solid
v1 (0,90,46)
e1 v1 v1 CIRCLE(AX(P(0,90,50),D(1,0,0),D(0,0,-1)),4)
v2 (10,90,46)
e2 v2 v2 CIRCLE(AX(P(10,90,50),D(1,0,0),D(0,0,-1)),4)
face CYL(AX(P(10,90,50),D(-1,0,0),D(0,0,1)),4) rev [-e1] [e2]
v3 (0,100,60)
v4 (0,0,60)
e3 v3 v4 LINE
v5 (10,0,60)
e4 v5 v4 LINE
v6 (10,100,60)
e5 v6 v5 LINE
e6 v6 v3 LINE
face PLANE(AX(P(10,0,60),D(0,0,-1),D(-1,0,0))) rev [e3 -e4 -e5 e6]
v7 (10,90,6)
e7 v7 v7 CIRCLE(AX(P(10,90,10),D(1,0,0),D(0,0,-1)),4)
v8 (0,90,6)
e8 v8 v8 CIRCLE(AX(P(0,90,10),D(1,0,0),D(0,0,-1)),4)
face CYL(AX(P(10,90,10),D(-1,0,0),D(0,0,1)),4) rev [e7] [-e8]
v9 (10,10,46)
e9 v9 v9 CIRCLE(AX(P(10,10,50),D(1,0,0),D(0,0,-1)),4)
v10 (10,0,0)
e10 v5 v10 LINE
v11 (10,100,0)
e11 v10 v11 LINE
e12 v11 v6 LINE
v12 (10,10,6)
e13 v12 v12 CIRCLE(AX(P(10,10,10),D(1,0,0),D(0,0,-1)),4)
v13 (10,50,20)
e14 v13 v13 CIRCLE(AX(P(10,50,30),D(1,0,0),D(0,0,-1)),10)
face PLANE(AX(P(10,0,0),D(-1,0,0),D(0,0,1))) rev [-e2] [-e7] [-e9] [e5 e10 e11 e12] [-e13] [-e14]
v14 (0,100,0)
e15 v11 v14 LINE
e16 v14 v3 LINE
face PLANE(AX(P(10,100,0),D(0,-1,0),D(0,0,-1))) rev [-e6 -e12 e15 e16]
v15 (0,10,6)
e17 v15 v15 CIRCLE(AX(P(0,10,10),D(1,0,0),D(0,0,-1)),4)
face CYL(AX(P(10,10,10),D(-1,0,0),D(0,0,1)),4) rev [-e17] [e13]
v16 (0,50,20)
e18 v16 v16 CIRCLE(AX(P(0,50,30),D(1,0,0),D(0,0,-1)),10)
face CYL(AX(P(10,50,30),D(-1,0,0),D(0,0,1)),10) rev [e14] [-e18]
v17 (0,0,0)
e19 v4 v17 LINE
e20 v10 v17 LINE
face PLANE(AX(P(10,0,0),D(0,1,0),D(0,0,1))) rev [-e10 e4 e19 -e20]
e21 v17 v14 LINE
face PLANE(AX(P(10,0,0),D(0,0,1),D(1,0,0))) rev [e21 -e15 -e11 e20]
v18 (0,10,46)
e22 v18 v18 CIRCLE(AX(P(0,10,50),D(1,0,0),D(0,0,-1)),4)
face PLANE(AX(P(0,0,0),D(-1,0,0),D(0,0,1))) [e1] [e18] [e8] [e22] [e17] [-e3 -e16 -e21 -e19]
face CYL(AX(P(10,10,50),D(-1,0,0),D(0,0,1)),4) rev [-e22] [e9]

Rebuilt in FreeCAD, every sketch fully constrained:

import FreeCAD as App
import Part
import Sketcher

V = App.Vector


def add_polygon(sketch, points):
    """Adds a closed chain of lines whose ends are joined by coincident constraints."""
    first, n = sketch.GeometryCount, len(points)
    for a, b in zip(points, points[1:] + points[:1]):
        sketch.addGeometry(Part.LineSegment(App.Vector(*a, 0), App.Vector(*b, 0)), False)
    for i in range(n):
        sketch.addConstraint(Sketcher.Constraint("Coincident", first + i, 2, first + (i + 1) % n, 1))

doc = App.newDocument("Part")
params = doc.addObject("Spreadsheet::Sheet", "Params")
for row, (alias, value) in enumerate([
    ("sketch1_width", "100 mm"),
    ("sketch1_height", "60 mm"),
    ("pad1_length", "10 mm"),
    ("sketch2_diameter", "8 mm"),
    ("sketch3_diameter", "20 mm"),
], start=1):
    params.set(f"A{row}", alias)
    params.set(f"B{row}", "=" + value)
    params.setAlias(f"B{row}", alias)

body = doc.addObject("PartDesign::Body", "Body")

# Sketch on YZ plane
sketch1 = doc.addObject("Sketcher::SketchObject", "Sketch")
body.addObject(sketch1)
sketch1.AttachmentSupport = (doc.YZ_Plane, [""])
sketch1.MapMode = "FlatFace"
add_polygon(sketch1, [(0, 60), (0, 0), (100, 0), (100, 60)])  # lines 0-3
sketch1.addConstraint(Sketcher.Constraint("Vertical", 0))
sketch1.addConstraint(Sketcher.Constraint("Horizontal", 1))
sketch1.addConstraint(Sketcher.Constraint("Vertical", 2))
sketch1.addConstraint(Sketcher.Constraint("Horizontal", 3))
sketch1.addConstraint(Sketcher.Constraint("Coincident", 0, 2, -1, 1))
sketch1.addConstraint(Sketcher.Constraint("DistanceX", 1, 1, 1, 2, 100.0))
sketch1.addConstraint(Sketcher.Constraint("DistanceY", 0, 2, 0, 1, 60.0))
sketch1.setExpression("Constraints[9]", "Params.sketch1_width")
sketch1.setExpression("Constraints[10]", "Params.sketch1_height")
pad1 = doc.addObject("PartDesign::Pad", "Pad")
body.addObject(pad1)
pad1.Profile = sketch1
pad1.setExpression("Length", "Params.pad1_length")

# Sketch on YZ plane
sketch2 = doc.addObject("Sketcher::SketchObject", "Sketch001")
body.addObject(sketch2)
sketch2.AttachmentSupport = (doc.YZ_Plane, [""])
sketch2.MapMode = "FlatFace"
sketch2.addGeometry(Part.Circle(V(10, 10, 0), V(0, 0, 1), 4), False)
sketch2.addGeometry(Part.Circle(V(90, 10, 0), V(0, 0, 1), 4), False)
sketch2.addGeometry(Part.Circle(V(10, 50, 0), V(0, 0, 1), 4), False)
sketch2.addGeometry(Part.Circle(V(90, 50, 0), V(0, 0, 1), 4), False)
sketch2.addConstraint(Sketcher.Constraint("Equal", 0, 1))
sketch2.addConstraint(Sketcher.Constraint("Equal", 1, 2))
sketch2.addConstraint(Sketcher.Constraint("Equal", 2, 3))
sketch2.addConstraint(Sketcher.Constraint("Horizontal", 0, 3, 1, 3))
sketch2.addConstraint(Sketcher.Constraint("Horizontal", 2, 3, 3, 3))
sketch2.addConstraint(Sketcher.Constraint("Vertical", 0, 3, 2, 3))
sketch2.addConstraint(Sketcher.Constraint("Vertical", 1, 3, 3, 3))
sketch2.addConstraint(Sketcher.Constraint("Diameter", 0, 8.0))
sketch2.addConstraint(Sketcher.Constraint("DistanceX", -1, 1, 0, 3, 10.0))
sketch2.addConstraint(Sketcher.Constraint("DistanceY", -1, 1, 0, 3, 10.0))
sketch2.addConstraint(Sketcher.Constraint("DistanceX", -1, 1, 1, 3, 90.0))
sketch2.addConstraint(Sketcher.Constraint("DistanceY", -1, 1, 2, 3, 50.0))
sketch2.setExpression("Constraints[7]", "Params.sketch2_diameter")
pocket1 = doc.addObject("PartDesign::Pocket", "Pocket")
body.addObject(pocket1)
pocket1.Profile = sketch2
pocket1.Type = "ThroughAll"
pocket1.Reversed = True

# Sketch on YZ plane
sketch3 = doc.addObject("Sketcher::SketchObject", "Sketch002")
body.addObject(sketch3)
sketch3.AttachmentSupport = (doc.YZ_Plane, [""])
sketch3.MapMode = "FlatFace"
sketch3.addGeometry(Part.Circle(V(50, 30, 0), V(0, 0, 1), 10), False)
sketch3.addConstraint(Sketcher.Constraint("Diameter", 0, 20.0))
sketch3.addConstraint(Sketcher.Constraint("DistanceX", -1, 1, 0, 3, 50.0))
sketch3.addConstraint(Sketcher.Constraint("DistanceY", -1, 1, 0, 3, 30.0))
sketch3.setExpression("Constraints[0]", "Params.sketch3_diameter")
pocket2 = doc.addObject("PartDesign::Pocket", "Pocket001")
body.addObject(pocket2)
pocket2.Profile = sketch3
pocket2.Type = "ThroughAll"
pocket2.Reversed = True

doc.recompute()
